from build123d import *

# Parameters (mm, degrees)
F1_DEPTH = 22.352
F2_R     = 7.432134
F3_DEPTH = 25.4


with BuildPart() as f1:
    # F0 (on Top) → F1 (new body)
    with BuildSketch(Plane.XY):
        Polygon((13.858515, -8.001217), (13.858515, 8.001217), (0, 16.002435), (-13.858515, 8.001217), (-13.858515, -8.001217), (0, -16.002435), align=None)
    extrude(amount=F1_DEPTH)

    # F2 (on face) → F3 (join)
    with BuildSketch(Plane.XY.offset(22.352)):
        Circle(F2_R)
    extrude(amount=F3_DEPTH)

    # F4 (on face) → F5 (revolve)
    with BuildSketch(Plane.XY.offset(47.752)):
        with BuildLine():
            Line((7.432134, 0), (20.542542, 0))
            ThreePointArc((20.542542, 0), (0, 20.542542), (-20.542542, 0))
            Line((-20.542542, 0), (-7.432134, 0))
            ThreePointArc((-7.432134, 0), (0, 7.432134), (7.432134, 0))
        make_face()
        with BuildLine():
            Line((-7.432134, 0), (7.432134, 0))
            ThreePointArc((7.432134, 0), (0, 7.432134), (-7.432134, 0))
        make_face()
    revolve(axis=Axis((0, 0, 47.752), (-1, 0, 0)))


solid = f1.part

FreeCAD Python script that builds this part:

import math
import FreeCAD as App
import Part
import Sketcher

V = App.Vector
Q = App.Units.Quantity


def add_polygon(sketch, points):
    """Adds a closed chain of lines whose ends are joined by coincident constraints."""
    first, n = sketch.GeometryCount, len(points)
    for a, b in zip(points, points[1:] + points[:1]):
        sketch.addGeometry(Part.LineSegment(App.Vector(*a, 0), App.Vector(*b, 0)), False)
    for i in range(n):
        sketch.addConstraint(Sketcher.Constraint("Coincident", first + i, 2, first + (i + 1) % n, 1))

doc = App.newDocument("Part")
body = doc.addObject("PartDesign::Body", "Body")

sketch1 = body.newObject("Sketcher::SketchObject", "Sketch")
sketch1.AttachmentSupport = (doc.getObject("XY_Plane"), [""])
sketch1.MapMode = "FlatFace"
add_polygon(sketch1, [(13.858515, -8.001217), (13.858515, 8.001217), (0, 16.002435), (-13.858515, 8.001217), (-13.858515, -8.001217), (0, -16.002435)])
sketch1.addConstraint([
    Sketcher.Constraint("Vertical", 0),
    Sketcher.Constraint("Vertical", 3),
    Sketcher.Constraint("Symmetric", 0, 2, 3, 2, -1, 1),
    Sketcher.Constraint("Symmetric", 1, 2, 4, 2, -1, 1),
    Sketcher.Constraint("PointOnObject", 1, 2, -2),
    Sketcher.Constraint("Parallel", 2, 5),
    Sketcher.Constraint("Horizontal", 0, 2, 2, 2),
    Sketcher.Constraint("Angle", 1, Q("149.999998 deg")),
    Sketcher.Constraint("DistanceY", 0, 1, 0, 2, Q("16.002434 mm")),
    Sketcher.Constraint("DistanceX", 2, 2, 0, 2, Q("27.71703 mm")),
])
pad1 = body.newObject("PartDesign::Pad", "Pad")
pad1.Profile = sketch1
pad1.Length = Q("0.88 in")

sketch2 = body.newObject("Sketcher::SketchObject", "Sketch001")
sketch2.AttachmentSupport = (doc.getObject("XY_Plane"), [""])
sketch2.MapMode = "FlatFace"
sketch2.AttachmentOffset = App.Placement(V(0, 0, 0.88 * 25.4), App.Rotation())
sketch2.addGeometry(Part.Circle(V(0, 0, 0), V(0, 0, 1), 7.432134), False)
sketch2.addConstraint([
    Sketcher.Constraint("Coincident", 0, 3, -1, 1),
    Sketcher.Constraint("Diameter", 0, Q("14.864268 mm")),
])
pad2 = body.newObject("PartDesign::Pad", "Pad001")
pad2.Profile = sketch2
pad2.Length = Q("1 in")

sketch3 = body.newObject("Sketcher::SketchObject", "Sketch002")
sketch3.AttachmentSupport = (doc.getObject("XY_Plane"), [""])
sketch3.MapMode = "FlatFace"
sketch3.AttachmentOffset = App.Placement(V(0, 0, 1.88 * 25.4), App.Rotation())
sketch3.addGeometry([
    Part.ArcOfCircle(Part.Circle(V(0, 0, 0), V(0, 0, 1), 20.542542), math.radians(0), math.radians(180)),
    Part.LineSegment(V(-20.542542, 0, 0), V(20.542542, 0, 0)),
], False)
sketch3.addConstraint([
    Sketcher.Constraint("Coincident", 0, 1, 1, 2),
    Sketcher.Constraint("Coincident", 1, 1, 0, 2),
    Sketcher.Constraint("Horizontal", 1),
    Sketcher.Constraint("Coincident", 0, 3, -1, 1),
    Sketcher.Constraint("PointOnObject", 0, 1, -1),
    Sketcher.Constraint("Radius", 0, Q("20.542542 mm")),
])
revolution = body.newObject("PartDesign::Revolution", "Revolution")
revolution.Profile = sketch3
revolution.ReferenceAxis = (sketch3, ["H_Axis"])
revolution.Angle = 360

doc.recompute()
